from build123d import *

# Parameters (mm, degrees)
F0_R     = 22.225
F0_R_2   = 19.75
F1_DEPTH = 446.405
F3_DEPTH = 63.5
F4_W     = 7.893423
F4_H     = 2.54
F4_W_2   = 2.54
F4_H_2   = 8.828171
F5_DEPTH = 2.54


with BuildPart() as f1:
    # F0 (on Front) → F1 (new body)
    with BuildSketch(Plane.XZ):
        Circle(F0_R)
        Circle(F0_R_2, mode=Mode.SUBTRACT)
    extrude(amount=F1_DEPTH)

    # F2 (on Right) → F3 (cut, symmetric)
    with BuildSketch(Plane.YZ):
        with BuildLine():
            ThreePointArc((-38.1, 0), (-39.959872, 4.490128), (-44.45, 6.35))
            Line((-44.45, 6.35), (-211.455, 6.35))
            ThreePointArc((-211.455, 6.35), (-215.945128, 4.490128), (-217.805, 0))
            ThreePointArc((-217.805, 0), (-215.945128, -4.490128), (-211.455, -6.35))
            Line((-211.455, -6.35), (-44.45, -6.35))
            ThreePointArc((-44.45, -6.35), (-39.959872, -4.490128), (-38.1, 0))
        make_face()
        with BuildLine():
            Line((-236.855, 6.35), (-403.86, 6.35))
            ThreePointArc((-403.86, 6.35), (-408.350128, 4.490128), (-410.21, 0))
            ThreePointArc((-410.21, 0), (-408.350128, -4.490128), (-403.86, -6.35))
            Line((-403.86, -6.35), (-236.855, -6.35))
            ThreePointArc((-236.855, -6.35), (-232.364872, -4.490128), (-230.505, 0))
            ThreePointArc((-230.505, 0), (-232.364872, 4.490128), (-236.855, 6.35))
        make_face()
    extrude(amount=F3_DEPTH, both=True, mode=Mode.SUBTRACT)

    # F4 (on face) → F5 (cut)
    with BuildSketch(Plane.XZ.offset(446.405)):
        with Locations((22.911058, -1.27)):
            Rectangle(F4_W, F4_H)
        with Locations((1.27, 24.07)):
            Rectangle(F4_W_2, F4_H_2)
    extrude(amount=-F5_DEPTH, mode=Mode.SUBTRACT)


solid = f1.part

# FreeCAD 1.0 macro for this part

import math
import FreeCAD as App
import Part
import Sketcher
from FreeCAD import Vector
Q = App.Units.Quantity


def add_polygon(sketch, points):
    """Adds a closed chain of lines whose ends are joined by coincident constraints."""
    first, n = sketch.GeometryCount, len(points)
    for a, b in zip(points, points[1:] + points[:1]):
        sketch.addGeometry(Part.LineSegment(App.Vector(*a, 0), App.Vector(*b, 0)), False)
    for i in range(n):
        sketch.addConstraint(Sketcher.Constraint("Coincident", first + i, 2, first + (i + 1) % n, 1))

doc = App.newDocument("Part")
body = doc.addObject("PartDesign::Body", "Body")

# Sketch on XZ plane
sketch1 = body.newObject("Sketcher::SketchObject", "Sketch")
sketch1.AttachmentSupport = (doc.getObject("XZ_Plane"), [""])
sketch1.MapMode = "FlatFace"
sketch1.addGeometry(Part.Circle(Vector(0, 0, 0), Vector(0, 0, 1), 22.225), False)
sketch1.addGeometry(Part.Circle(Vector(0, 0, 0), Vector(0, 0, 1), 19.75), False)
sketch1.addConstraint(Sketcher.Constraint("Coincident", 0, 3, -1, 1))
sketch1.addConstraint(Sketcher.Constraint("Coincident", 1, 3, -1, 1))
sketch1.addConstraint(Sketcher.Constraint("Diameter", 0, Q("1.75 in")))
sketch1.addConstraint(Sketcher.Constraint("Diameter", 1, 39.5))
pad1 = body.newObject("PartDesign::Pad", "Pad")
pad1.Profile = sketch1
pad1.Length = Q("17.575 in")

# Sketch on YZ plane
sketch2 = body.newObject("Sketcher::SketchObject", "Sketch001")
sketch2.AttachmentSupport = (doc.getObject("YZ_Plane"), [""])
sketch2.MapMode = "FlatFace"
sketch2.addGeometry(Part.ArcOfCircle(Part.Circle(Vector(-44.45, 0, 0), Vector(0, 0, 1), 6.35), math.radians(0.000002), math.radians(89.999998)), False)
sketch2.addGeometry(Part.LineSegment(Vector(-44.45, 6.35, 0), Vector(-211.455, 6.35, 0)), False)
sketch2.addGeometry(Part.ArcOfCircle(Part.Circle(Vector(-211.455, 0, 0), Vector(0, 0, 1), 6.35), math.radians(90.000002), math.radians(179.999998)), False)
sketch2.addGeometry(Part.ArcOfCircle(Part.Circle(Vector(-211.455, 0, 0), Vector(0, 0, 1), 6.35), math.radians(-179.999998), math.radians(-90.000002)), False)
sketch2.addGeometry(Part.LineSegment(Vector(-211.455, -6.35, 0), Vector(-44.45, -6.35, 0)), False)
sketch2.addGeometry(Part.ArcOfCircle(Part.Circle(Vector(-44.45, 0, 0), Vector(0, 0, 1), 6.35), math.radians(-89.999998), math.radians(-0.000002)), False)
sketch2.addGeometry(Part.LineSegment(Vector(-236.855, 6.35, 0), Vector(-403.86, 6.35, 0)), False)
sketch2.addGeometry(Part.ArcOfCircle(Part.Circle(Vector(-403.86, 0, 0), Vector(0, 0, 1), 6.35), math.radians(90.000002), math.radians(179.999998)), False)
sketch2.addGeometry(Part.ArcOfCircle(Part.Circle(Vector(-403.86, 0, 0), Vector(0, 0, 1), 6.35), math.radians(-179.999998), math.radians(-90.000002)), False)
sketch2.addGeometry(Part.LineSegment(Vector(-403.86, -6.35, 0), Vector(-236.855, -6.35, 0)), False)
sketch2.addGeometry(Part.ArcOfCircle(Part.Circle(Vector(-236.855, 0, 0), Vector(0, 0, 1), 6.35), math.radians(-89.999998), math.radians(-0.000002)), False)
sketch2.addGeometry(Part.ArcOfCircle(Part.Circle(Vector(-236.855, 0, 0), Vector(0, 0, 1), 6.35), math.radians(0.000002), math.radians(89.999998)), False)
sketch2.addConstraint(Sketcher.Constraint("Tangent", 0, 2, 1, 1))
sketch2.addConstraint(Sketcher.Constraint("Tangent", 1, 2, 2, 1))
sketch2.addConstraint(Sketcher.Constraint("Tangent", 2, 2, 3, 1))
sketch2.addConstraint(Sketcher.Constraint("Tangent", 3, 2, 4, 1))
sketch2.addConstraint(Sketcher.Constraint("Tangent", 4, 2, 5, 1))
sketch2.addConstraint(Sketcher.Constraint("Tangent", 5, 2, 0, 1))
sketch2.addConstraint(Sketcher.Constraint("Tangent", 6, 2, 7, 1))
sketch2.addConstraint(Sketcher.Constraint("Tangent", 7, 2, 8, 1))
sketch2.addConstraint(Sketcher.Constraint("Tangent", 8, 2, 9, 1))
sketch2.addConstraint(Sketcher.Constraint("Tangent", 9, 2, 10, 1))
sketch2.addConstraint(Sketcher.Constraint("Tangent", 10, 2, 11, 1))
sketch2.addConstraint(Sketcher.Constraint("Tangent", 11, 2, 6, 1))
sketch2.addConstraint(Sketcher.Constraint("Horizontal", 1))
sketch2.addConstraint(Sketcher.Constraint("Horizontal", 4))
sketch2.addConstraint(Sketcher.Constraint("Horizontal", 6))
sketch2.addConstraint(Sketcher.Constraint("Horizontal", 9))
sketch2.addConstraint(Sketcher.Constraint("Equal", 0, 2))
sketch2.addConstraint(Sketcher.Constraint("Equal", 2, 3))
sketch2.addConstraint(Sketcher.Constraint("Equal", 5, 7))
sketch2.addConstraint(Sketcher.Constraint("Equal", 7, 8))
sketch2.addConstraint(Sketcher.Constraint("Equal", 8, 10))
sketch2.addConstraint(Sketcher.Constraint("PointOnObject", 0, 3, -1))
sketch2.addConstraint(Sketcher.Constraint("PointOnObject", 7, 3, -1))
sketch2.addConstraint(Sketcher.Constraint("PointOnObject", 2, 2, -1))
sketch2.addConstraint(Sketcher.Constraint("PointOnObject", 5, 2, -1))
sketch2.addConstraint(Sketcher.Constraint("PointOnObject", 7, 2, -1))
sketch2.addConstraint(Sketcher.Constraint("PointOnObject", 10, 2, -1))
sketch2.addConstraint(Sketcher.Constraint("Equal", 4, 6))
sketch2.addConstraint(Sketcher.Constraint("Radius", 0, Q("0.25 in")))
sketch2.addConstraint(Sketcher.Constraint("DistanceX", 10, 3, 3, 3, Q("1 in")))
sketch2.addConstraint(Sketcher.Constraint("DistanceX", 7, 3, -1, 1, Q("15.9 in")))
sketch2.addConstraint(Sketcher.Constraint("DistanceX", 5, 2, -1, 1, Q("1.5 in")))
pocket1 = body.newObject("PartDesign::Pocket", "Pocket")
pocket1.Profile = sketch2
pocket1.Length = Q("5 in")
pocket1.Midplane = True

# Sketch on XZ plane
sketch3 = body.newObject("Sketcher::SketchObject", "Sketch002")
sketch3.AttachmentSupport = (doc.getObject("XZ_Plane"), [""])
sketch3.MapMode = "FlatFace"
sketch3.AttachmentOffset = App.Placement(Vector(0, 0, 17.575 * 25.4), App.Rotation())
add_polygon(sketch3, [(18.964347, 0), (18.964347, -2.54), (26.857769, -2.54), (26.857769, 0)])  # lines 0-3
add_polygon(sketch3, [(0, 28.484085), (0, 19.655915), (2.54, 19.655915), (2.54, 28.484085)])  # lines 4-7
sketch3.addConstraint(Sketcher.Constraint("Vertical", 0))
sketch3.addConstraint(Sketcher.Constraint("Horizontal", 1))
sketch3.addConstraint(Sketcher.Constraint("Vertical", 2))
sketch3.addConstraint(Sketcher.Constraint("Horizontal", 3))
sketch3.addConstraint(Sketcher.Constraint("Vertical", 4))
sketch3.addConstraint(Sketcher.Constraint("Horizontal", 5))
sketch3.addConstraint(Sketcher.Constraint("Vertical", 6))
sketch3.addConstraint(Sketcher.Constraint("Horizontal", 7))
sketch3.addConstraint(Sketcher.Constraint("PointOnObject", 2, 2, -1))
sketch3.addConstraint(Sketcher.Constraint("PointOnObject", 4, 2, -2))
sketch3.addConstraint(Sketcher.Constraint("Equal", 7, 0))
sketch3.addConstraint(Sketcher.Constraint("DistanceX", 5, 1, 5, 2, Q("0.1 in")))
sketch3.addConstraint(Sketcher.Constraint("DistanceY", 4, 2, 4, 1, 8.828171))
sketch3.addConstraint(Sketcher.Constraint("DistanceX", 1, 1, 1, 2, 7.893423))
sketch3.addConstraint(Sketcher.Constraint("DistanceX", -1, 1, 1, 2, 26.857769))
sketch3.addConstraint(Sketcher.Constraint("DistanceY", -1, 1, 4, 2, 19.655915))
pocket2 = body.newObject("PartDesign::Pocket", "Pocket001")
pocket2.Profile = sketch3
pocket2.Length = Q("0.1 in")

doc.recompute()
